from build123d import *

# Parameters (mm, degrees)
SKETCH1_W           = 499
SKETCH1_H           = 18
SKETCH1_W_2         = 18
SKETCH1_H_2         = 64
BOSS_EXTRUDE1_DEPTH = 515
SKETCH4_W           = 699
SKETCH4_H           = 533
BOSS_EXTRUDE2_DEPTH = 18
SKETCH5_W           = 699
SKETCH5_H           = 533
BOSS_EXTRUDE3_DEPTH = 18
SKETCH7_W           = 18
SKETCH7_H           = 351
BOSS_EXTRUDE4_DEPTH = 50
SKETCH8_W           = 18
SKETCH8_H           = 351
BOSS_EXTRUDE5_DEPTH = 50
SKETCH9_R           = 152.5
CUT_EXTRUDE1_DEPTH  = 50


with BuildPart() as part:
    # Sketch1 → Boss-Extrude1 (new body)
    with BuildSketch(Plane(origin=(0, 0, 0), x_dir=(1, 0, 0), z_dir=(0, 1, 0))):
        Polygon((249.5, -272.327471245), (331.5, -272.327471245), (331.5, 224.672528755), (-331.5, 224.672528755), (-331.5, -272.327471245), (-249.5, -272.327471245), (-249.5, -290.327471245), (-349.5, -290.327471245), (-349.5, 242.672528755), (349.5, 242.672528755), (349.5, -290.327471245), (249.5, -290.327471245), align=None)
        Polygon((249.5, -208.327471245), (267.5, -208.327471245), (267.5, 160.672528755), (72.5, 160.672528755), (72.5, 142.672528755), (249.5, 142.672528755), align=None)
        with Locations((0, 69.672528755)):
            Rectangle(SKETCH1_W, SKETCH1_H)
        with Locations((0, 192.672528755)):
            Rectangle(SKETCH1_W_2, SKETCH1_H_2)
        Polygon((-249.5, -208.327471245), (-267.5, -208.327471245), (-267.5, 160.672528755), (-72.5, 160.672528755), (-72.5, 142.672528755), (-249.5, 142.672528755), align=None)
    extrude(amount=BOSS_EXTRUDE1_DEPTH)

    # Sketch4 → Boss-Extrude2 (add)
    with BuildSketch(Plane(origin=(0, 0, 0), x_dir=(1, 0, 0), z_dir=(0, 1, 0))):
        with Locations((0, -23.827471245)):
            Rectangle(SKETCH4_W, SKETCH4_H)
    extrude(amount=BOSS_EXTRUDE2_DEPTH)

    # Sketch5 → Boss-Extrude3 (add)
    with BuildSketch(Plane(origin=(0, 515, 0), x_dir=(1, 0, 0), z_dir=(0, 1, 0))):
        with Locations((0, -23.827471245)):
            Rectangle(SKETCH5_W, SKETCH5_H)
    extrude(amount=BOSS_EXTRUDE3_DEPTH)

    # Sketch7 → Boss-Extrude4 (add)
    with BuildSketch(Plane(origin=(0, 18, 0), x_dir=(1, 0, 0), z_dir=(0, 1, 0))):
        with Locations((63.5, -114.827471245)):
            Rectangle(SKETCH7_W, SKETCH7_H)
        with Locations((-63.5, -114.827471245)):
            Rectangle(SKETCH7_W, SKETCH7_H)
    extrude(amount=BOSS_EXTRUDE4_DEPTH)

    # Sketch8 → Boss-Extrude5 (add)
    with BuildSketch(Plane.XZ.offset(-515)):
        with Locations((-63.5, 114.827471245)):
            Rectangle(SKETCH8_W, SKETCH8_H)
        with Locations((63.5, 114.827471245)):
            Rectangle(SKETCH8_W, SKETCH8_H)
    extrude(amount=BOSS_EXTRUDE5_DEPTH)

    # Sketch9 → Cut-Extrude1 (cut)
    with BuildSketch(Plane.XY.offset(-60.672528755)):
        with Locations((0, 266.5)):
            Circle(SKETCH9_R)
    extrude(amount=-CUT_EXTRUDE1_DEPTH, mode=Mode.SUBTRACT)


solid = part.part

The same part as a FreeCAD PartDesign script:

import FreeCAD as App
import Part
import Sketcher
from FreeCAD import Vector


def add_polygon(sketch, points):
    """Adds a closed chain of lines whose ends are joined by coincident constraints."""
    first, n = sketch.GeometryCount, len(points)
    for a, b in zip(points, points[1:] + points[:1]):
        sketch.addGeometry(Part.LineSegment(App.Vector(*a, 0), App.Vector(*b, 0)), False)
    for i in range(n):
        sketch.addConstraint(Sketcher.Constraint("Coincident", first + i, 2, first + (i + 1) % n, 1))

doc = App.newDocument("Part")
body = doc.addObject("PartDesign::Body", "Body")
body.AllowCompound = True

sketch1 = body.newObject("Sketcher::SketchObject", "Sketch")
sketch1.AttachmentSupport = (doc.getObject("XZ_Plane"), [""])
sketch1.MapMode = "FlatFace"
add_polygon(sketch1, [(331.5, 272.327471), (249.5, 272.327471), (249.5, 290.327471), (349.5, 290.327471), (349.5, -242.672529), (-349.5, -242.672529), (-349.5, 290.327471), (-249.5, 290.327471), (-249.5, 272.327471), (-331.5, 272.327471), (-331.5, -224.672529), (-9, -224.672529), (-9, -160.672529), (9, -160.672529), (9, -224.672529), (331.5, -224.672529)])
add_polygon(sketch1, [(249.5, 208.327471), (267.5, 208.327471), (267.5, -160.672529), (72.5, -160.672529), (72.5, -142.672529), (249.5, -142.672529), (249.5, -78.672529), (-249.5, -78.672529), (-249.5, -142.672529), (-72.5, -142.672529), (-72.5, -160.672529), (-267.5, -160.672529), (-267.5, 208.327471), (-249.5, 208.327471), (-249.5, -60.672529), (249.5, -60.672529)])
sketch1.addConstraint([
    Sketcher.Constraint("Horizontal", 0),
    Sketcher.Constraint("Vertical", 1),
    Sketcher.Constraint("Horizontal", 2),
    Sketcher.Constraint("Vertical", 3),
    Sketcher.Constraint("Horizontal", 4),
    Sketcher.Constraint("Vertical", 5),
    Sketcher.Constraint("Horizontal", 6),
    Sketcher.Constraint("Vertical", 7),
    Sketcher.Constraint("Horizontal", 8),
    Sketcher.Constraint("Vertical", 9),
    Sketcher.Constraint("Horizontal", 10),
    Sketcher.Constraint("Vertical", 11),
    Sketcher.Constraint("Horizontal", 12),
    Sketcher.Constraint("Vertical", 13),
    Sketcher.Constraint("Horizontal", 14),
    Sketcher.Constraint("Vertical", 15),
    Sketcher.Constraint("Horizontal", 16),
    Sketcher.Constraint("Vertical", 17),
    Sketcher.Constraint("Horizontal", 18),
    Sketcher.Constraint("Vertical", 19),
    Sketcher.Constraint("Horizontal", 20),
    Sketcher.Constraint("Vertical", 21),
    Sketcher.Constraint("Horizontal", 22),
    Sketcher.Constraint("Vertical", 23),
    Sketcher.Constraint("Horizontal", 24),
    Sketcher.Constraint("Vertical", 25),
    Sketcher.Constraint("Horizontal", 26),
    Sketcher.Constraint("Vertical", 27),
    Sketcher.Constraint("Horizontal", 28),
    Sketcher.Constraint("Vertical", 29),
    Sketcher.Constraint("Horizontal", 30),
    Sketcher.Constraint("Vertical", 31),
    Sketcher.Constraint("Symmetric", 2, 2, 5, 2, -2),
    Sketcher.Constraint("Symmetric", 0, 2, 7, 2, -2),
    Sketcher.Constraint("Symmetric", 10, 2, 13, 2, -2),
    Sketcher.Constraint("Symmetric", 20, 2, 23, 2, -2),
    Sketcher.Constraint("Symmetric", 18, 2, 25, 2, -2),
    Sketcher.Constraint("Symmetric", 16, 2, 27, 2, -2),
    Sketcher.Constraint("Horizontal", 12, 2, 17, 2),
    Sketcher.Constraint("Vertical", 1, 2, 20, 2),
    Sketcher.Constraint("Vertical", 23, 2, 28, 2),
    Sketcher.Constraint("Vertical", 21, 2, 30, 2),
    Sketcher.Constraint("Equal", 0, 8),
    Sketcher.Constraint("Equal", 12, 16),
    Sketcher.Constraint("Equal", 28, 1),
    Sketcher.Constraint("Equal", 7, 19),
    Sketcher.Constraint("Equal", 13, 21),
    Sketcher.Constraint("DistanceX", 0, 2, 0, 1, 82.0),
    Sketcher.Constraint("DistanceX", 2, 1, 2, 2, 100.0),
    Sketcher.Constraint("DistanceX", 4, 2, 4, 1, 699.0),
    Sketcher.Constraint("DistanceX", 12, 1, 12, 2, 18.0),
    Sketcher.Constraint("DistanceX", 18, 2, 18, 1, 195.0),
    Sketcher.Constraint("DistanceY", 3, 2, 3, 1, 533.0),
    Sketcher.Constraint("DistanceY", 9, 2, 9, 1, 497.0),
    Sketcher.Constraint("DistanceY", 11, 1, 11, 2, 64.0),
    Sketcher.Constraint("DistanceY", 17, 2, 17, 1, 369.0),
    Sketcher.Constraint("DistanceY", 29, 2, 29, 1, 269.0),
    Sketcher.Constraint("DistanceY", -1, 1, 0, 2, 272.327471),
])
pad1 = body.newObject("PartDesign::Pad", "Pad")
pad1.Profile = sketch1
pad1.Length = 515
pad1.Reversed = True

sketch2 = body.newObject("Sketcher::SketchObject", "Sketch001")
sketch2.AttachmentSupport = (doc.getObject("XZ_Plane"), [""])
sketch2.MapMode = "FlatFace"
add_polygon(sketch2, [(-349.5, -242.672529), (-349.5, 290.327471), (349.5, 290.327471), (349.5, -242.672529)])
sketch2.addConstraint([
    Sketcher.Constraint("Vertical", 0),
    Sketcher.Constraint("Horizontal", 1),
    Sketcher.Constraint("Vertical", 2),
    Sketcher.Constraint("Horizontal", 3),
    Sketcher.Constraint("DistanceX", 1, 1, 1, 2, 699.0),
    Sketcher.Constraint("DistanceY", 0, 1, 0, 2, 533.0),
    Sketcher.Constraint("DistanceX", 0, 2, -1, 1, 349.5),
    Sketcher.Constraint("DistanceY", -1, 1, 0, 2, 290.327471),
])
pad2 = body.newObject("PartDesign::Pad", "Pad001")
pad2.Profile = sketch2
pad2.Length = 18
pad2.Reversed = True

sketch3 = body.newObject("Sketcher::SketchObject", "Sketch002")
sketch3.AttachmentSupport = (doc.getObject("XZ_Plane"), [""])
sketch3.MapMode = "FlatFace"
sketch3.AttachmentOffset = App.Placement(Vector(0, 0, -515), App.Rotation())
add_polygon(sketch3, [(-349.5, -242.672529), (-349.5, 290.327471), (349.5, 290.327471), (349.5, -242.672529)])
sketch3.addConstraint([
    Sketcher.Constraint("Vertical", 0),
    Sketcher.Constraint("Horizontal", 1),
    Sketcher.Constraint("Vertical", 2),
    Sketcher.Constraint("Horizontal", 3),
    Sketcher.Constraint("DistanceX", 1, 1, 1, 2, 699.0),
    Sketcher.Constraint("DistanceY", 0, 1, 0, 2, 533.0),
    Sketcher.Constraint("DistanceX", 0, 2, -1, 1, 349.5),
    Sketcher.Constraint("DistanceY", -1, 1, 0, 2, 290.327471),
])
pad3 = body.newObject("PartDesign::Pad", "Pad002")
pad3.Profile = sketch3
pad3.Length = 18
pad3.Reversed = True

sketch4 = body.newObject("Sketcher::SketchObject", "Sketch003")
sketch4.AttachmentSupport = (doc.getObject("XZ_Plane"), [""])
sketch4.MapMode = "FlatFace"
sketch4.AttachmentOffset = App.Placement(Vector(0, 0, -18), App.Rotation())
add_polygon(sketch4, [(54.5, -60.672529), (54.5, 290.327471), (72.5, 290.327471), (72.5, -60.672529)])
add_polygon(sketch4, [(-72.5, -60.672529), (-72.5, 290.327471), (-54.5, 290.327471), (-54.5, -60.672529)])
sketch4.addConstraint([
    Sketcher.Constraint("Vertical", 0),
    Sketcher.Constraint("Horizontal", 1),
    Sketcher.Constraint("Vertical", 2),
    Sketcher.Constraint("Horizontal", 3),
    Sketcher.Constraint("Vertical", 4),
    Sketcher.Constraint("Horizontal", 5),
    Sketcher.Constraint("Vertical", 6),
    Sketcher.Constraint("Horizontal", 7),
    Sketcher.Constraint("Symmetric", 1, 2, 4, 2, -2),
    Sketcher.Constraint("Symmetric", 3, 2, 6, 2, -2),
    Sketcher.Constraint("DistanceX", 1, 1, 1, 2, 18.0),
    Sketcher.Constraint("DistanceY", 0, 1, 0, 2, 351.0),
    Sketcher.Constraint("DistanceX", 4, 2, 0, 2, 127.0),
    Sketcher.Constraint("DistanceY", -1, 1, 0, 2, 290.327471),
])
pad4 = body.newObject("PartDesign::Pad", "Pad003")
pad4.Profile = sketch4
pad4.Length = 50
pad4.Reversed = True

sketch5 = body.newObject("Sketcher::SketchObject", "Sketch004")
sketch5.AttachmentSupport = (doc.getObject("XZ_Plane"), [""])
sketch5.MapMode = "FlatFace"
sketch5.AttachmentOffset = App.Placement(Vector(0, 0, -515), App.Rotation())
add_polygon(sketch5, [(-72.5, 290.327471), (-72.5, -60.672529), (-54.5, -60.672529), (-54.5, 290.327471)])
add_polygon(sketch5, [(54.5, 290.327471), (54.5, -60.672529), (72.5, -60.672529), (72.5, 290.327471)])
sketch5.addConstraint([
    Sketcher.Constraint("Vertical", 0),
    Sketcher.Constraint("Horizontal", 1),
    Sketcher.Constraint("Vertical", 2),
    Sketcher.Constraint("Horizontal", 3),
    Sketcher.Constraint("Vertical", 4),
    Sketcher.Constraint("Horizontal", 5),
    Sketcher.Constraint("Vertical", 6),
    Sketcher.Constraint("Horizontal", 7),
    Sketcher.Constraint("Symmetric", 1, 2, 4, 2, -2),
    Sketcher.Constraint("Symmetric", 3, 2, 6, 2, -2),
    Sketcher.Constraint("DistanceX", 1, 1, 1, 2, 18.0),
    Sketcher.Constraint("DistanceY", 0, 2, 0, 1, 351.0),
    Sketcher.Constraint("DistanceX", 1, 2, 4, 2, 109.0),
    Sketcher.Constraint("DistanceY", 0, 2, -1, 1, 60.672529),
])
pad5 = body.newObject("PartDesign::Pad", "Pad004")
pad5.Profile = sketch5
pad5.Length = 50

sketch6 = body.newObject("Sketcher::SketchObject", "Sketch005")
sketch6.AttachmentSupport = (doc.getObject("XY_Plane"), [""])
sketch6.MapMode = "FlatFace"
sketch6.AttachmentOffset = App.Placement(Vector(0, 0, -60.672529), App.Rotation())
sketch6.addGeometry(Part.Circle(Vector(0, 266.5, 0), Vector(0, 0, 1), 152.5), False)
sketch6.addConstraint([
    Sketcher.Constraint("PointOnObject", 0, 3, -2),
    Sketcher.Constraint("Diameter", 0, 305.0),
    Sketcher.Constraint("DistanceY", -1, 1, 0, 3, 266.5),
])
pocket1 = body.newObject("PartDesign::Pocket", "Pocket")
pocket1.Profile = sketch6
pocket1.Length = 50

doc.recompute()
